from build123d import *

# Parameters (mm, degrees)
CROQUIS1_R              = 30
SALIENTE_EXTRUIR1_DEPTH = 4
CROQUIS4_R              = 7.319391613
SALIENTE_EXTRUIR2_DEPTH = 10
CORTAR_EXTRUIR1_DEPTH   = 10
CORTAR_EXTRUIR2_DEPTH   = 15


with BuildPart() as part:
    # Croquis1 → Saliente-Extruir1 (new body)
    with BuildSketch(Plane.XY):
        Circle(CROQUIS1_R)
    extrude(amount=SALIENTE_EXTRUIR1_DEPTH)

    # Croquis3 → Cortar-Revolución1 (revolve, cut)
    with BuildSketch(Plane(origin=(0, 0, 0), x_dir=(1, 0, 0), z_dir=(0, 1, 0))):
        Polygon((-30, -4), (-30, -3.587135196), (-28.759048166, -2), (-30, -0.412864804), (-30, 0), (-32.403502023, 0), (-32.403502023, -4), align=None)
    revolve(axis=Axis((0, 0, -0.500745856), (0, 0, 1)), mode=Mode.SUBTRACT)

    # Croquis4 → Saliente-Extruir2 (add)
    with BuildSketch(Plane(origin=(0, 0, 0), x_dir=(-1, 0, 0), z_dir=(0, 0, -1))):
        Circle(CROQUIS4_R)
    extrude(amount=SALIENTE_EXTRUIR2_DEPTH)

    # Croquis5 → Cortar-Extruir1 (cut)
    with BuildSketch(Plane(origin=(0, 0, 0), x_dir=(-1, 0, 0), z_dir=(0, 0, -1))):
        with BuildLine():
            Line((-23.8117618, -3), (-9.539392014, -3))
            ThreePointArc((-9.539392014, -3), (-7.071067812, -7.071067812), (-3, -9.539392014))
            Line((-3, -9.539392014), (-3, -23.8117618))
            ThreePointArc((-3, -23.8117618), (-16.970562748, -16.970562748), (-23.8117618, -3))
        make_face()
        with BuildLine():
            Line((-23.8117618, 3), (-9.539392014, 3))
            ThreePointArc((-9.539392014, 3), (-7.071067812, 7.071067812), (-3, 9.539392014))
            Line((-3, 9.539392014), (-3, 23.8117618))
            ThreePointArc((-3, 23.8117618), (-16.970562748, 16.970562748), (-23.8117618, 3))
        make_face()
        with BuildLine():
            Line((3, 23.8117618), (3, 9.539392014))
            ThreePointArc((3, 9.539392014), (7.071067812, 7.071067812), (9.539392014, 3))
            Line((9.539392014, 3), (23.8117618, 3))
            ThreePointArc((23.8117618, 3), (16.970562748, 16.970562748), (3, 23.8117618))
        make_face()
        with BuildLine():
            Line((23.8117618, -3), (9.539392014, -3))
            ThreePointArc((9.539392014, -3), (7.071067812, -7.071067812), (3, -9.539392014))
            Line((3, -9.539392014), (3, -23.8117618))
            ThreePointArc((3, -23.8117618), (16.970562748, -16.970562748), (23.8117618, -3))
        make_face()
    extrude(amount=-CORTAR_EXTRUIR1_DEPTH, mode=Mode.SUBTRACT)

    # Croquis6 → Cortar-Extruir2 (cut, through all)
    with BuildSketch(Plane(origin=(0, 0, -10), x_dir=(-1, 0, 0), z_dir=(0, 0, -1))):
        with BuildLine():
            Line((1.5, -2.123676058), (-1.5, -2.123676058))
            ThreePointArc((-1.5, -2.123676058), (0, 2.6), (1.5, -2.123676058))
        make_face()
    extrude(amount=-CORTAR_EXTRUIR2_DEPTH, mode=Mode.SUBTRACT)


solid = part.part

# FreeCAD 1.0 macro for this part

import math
import FreeCAD as App
import Part
import Sketcher

V = App.Vector

doc = App.newDocument("Part")
body = doc.addObject("PartDesign::Body", "Body")

# Sketch on XY plane
sketch1 = body.newObject("Sketcher::SketchObject", "Sketch")
sketch1.AttachmentSupport = (doc.getObject("XY_Plane"), [""])
sketch1.MapMode = "FlatFace"
sketch1.addGeometry(Part.Circle(V(0, 0, 0), V(0, 0, 1), 30), False)
sketch1.addConstraint(Sketcher.Constraint("Coincident", 0, 3, -1, 1))
sketch1.addConstraint(Sketcher.Constraint("Diameter", 0, 60.0))
pad1 = body.newObject("PartDesign::Pad", "Pad")
pad1.Profile = sketch1
pad1.Length = 4

# Sketch on XZ plane
sketch2 = body.newObject("Sketcher::SketchObject", "Sketch001")
sketch2.AttachmentSupport = (doc.getObject("XZ_Plane"), [""])
sketch2.MapMode = "FlatFace"
sketch2.addGeometry(Part.LineSegment(V(-30, 4, 0), V(-30, 3.59, 0)), False)
sketch2.addGeometry(Part.LineSegment(V(-30, 3.59, 0), V(-28.76, 2, 0)), False)
sketch2.addGeometry(Part.LineSegment(V(-28.76, 2, 0), V(-30, 0.41, 0)), False)
sketch2.addGeometry(Part.LineSegment(V(-30, 0.41, 0), V(-30, 0, 0)), False)
sketch2.addGeometry(Part.LineSegment(V(-30, 0, 0), V(-32.4, 0, 0)), False)
sketch2.addGeometry(Part.LineSegment(V(-32.4, 0, 0), V(-32.4, 4, 0)), False)
sketch2.addGeometry(Part.LineSegment(V(-32.4, 4, 0), V(-30, 4, 0)), False)
sketch2.addConstraint(Sketcher.Constraint("Coincident", 0, 2, 1, 1))
sketch2.addConstraint(Sketcher.Constraint("Coincident", 1, 2, 2, 1))
sketch2.addConstraint(Sketcher.Constraint("Coincident", 2, 2, 3, 1))
sketch2.addConstraint(Sketcher.Constraint("Coincident", 3, 2, 4, 1))
sketch2.addConstraint(Sketcher.Constraint("Coincident", 4, 2, 5, 1))
sketch2.addConstraint(Sketcher.Constraint("Coincident", 5, 2, 6, 1))
sketch2.addConstraint(Sketcher.Constraint("Coincident", 6, 2, 0, 1))
sketch2.addConstraint(Sketcher.Constraint("Vertical", 0))
sketch2.addConstraint(Sketcher.Constraint("Vertical", 3))
sketch2.addConstraint(Sketcher.Constraint("Horizontal", 4))
sketch2.addConstraint(Sketcher.Constraint("Vertical", 5))
sketch2.addConstraint(Sketcher.Constraint("Horizontal", 6))
sketch2.addConstraint(Sketcher.Constraint("PointOnObject", 3, 2, -1))
sketch2.addConstraint(Sketcher.Constraint("Vertical", 0, 2, 2, 2))
sketch2.addConstraint(Sketcher.Constraint("Equal", 0, 3))
sketch2.addConstraint(Sketcher.Constraint("Equal", 1, 2))
sketch2.addConstraint(Sketcher.Constraint("DistanceY", 5, 1, 5, 2, 4.0))
sketch2.addConstraint(Sketcher.Constraint("DistanceX", 0, 2, -1, 1, 30.0))
sketch2.addConstraint(Sketcher.Constraint("DistanceX", 4, 2, 4, 1, 2.403502))
sketch2.addConstraint(Sketcher.Constraint("DistanceY", 0, 2, 0, 1, 0.412865))
sketch2.addConstraint(Sketcher.Constraint("DistanceX", 1, 2, -1, 1, 28.759048))
groove = body.newObject("PartDesign::Groove", "Groove")
groove.Profile = sketch2
groove.ReferenceAxis = (sketch2, ["V_Axis"])
groove.Angle = 360

# Sketch on XY plane
sketch3 = body.newObject("Sketcher::SketchObject", "Sketch002")
sketch3.AttachmentSupport = (doc.getObject("XY_Plane"), [""])
sketch3.MapMode = "FlatFace"
sketch3.addGeometry(Part.Circle(V(0, 0, 0), V(0, 0, 1), 7), False)
sketch3.addConstraint(Sketcher.Constraint("Coincident", 0, 3, -1, 1))
sketch3.addConstraint(Sketcher.Constraint("Diameter", 0, 14.638783))
pad2 = body.newObject("PartDesign::Pad", "Pad001")
pad2.Profile = sketch3
pad2.Length = 10
pad2.Reversed = True

# Sketch on XY plane
sketch4 = body.newObject("Sketcher::SketchObject", "Sketch003")
sketch4.AttachmentSupport = (doc.getObject("XY_Plane"), [""])
sketch4.MapMode = "FlatFace"
sketch4.addGeometry(Part.LineSegment(V(10, -3, 0), V(24, -3, 0)), False)
sketch4.addGeometry(Part.ArcOfCircle(Part.Circle(V(0, 0, 0), V(0, 0, 1), 24), math.radians(-83), math.radians(-7)), False)
sketch4.addGeometry(Part.LineSegment(V(3, -24, 0), V(3, -10, 0)), False)
sketch4.addGeometry(Part.ArcOfCircle(Part.Circle(V(0, 0, 0), V(0, 0, 1), 10), math.radians(-73), math.radians(-17)), False)
sketch4.addGeometry(Part.LineSegment(V(24, 3, 0), V(10, 3, 0)), False)
sketch4.addGeometry(Part.ArcOfCircle(Part.Circle(V(0, 0, 0), V(0, 0, 1), 10), math.radians(17), math.radians(73)), False)
sketch4.addGeometry(Part.LineSegment(V(3, 10, 0), V(3, 24, 0)), False)
sketch4.addGeometry(Part.ArcOfCircle(Part.Circle(V(0, 0, 0), V(0, 0, 1), 24), math.radians(7), math.radians(83)), False)
sketch4.addGeometry(Part.LineSegment(V(-3, 24, 0), V(-3, 10, 0)), False)
sketch4.addGeometry(Part.ArcOfCircle(Part.Circle(V(0, 0, 0), V(0, 0, 1), 10), math.radians(107), math.radians(163)), False)
sketch4.addGeometry(Part.LineSegment(V(-10, 3, 0), V(-24, 3, 0)), False)
sketch4.addGeometry(Part.ArcOfCircle(Part.Circle(V(0, 0, 0), V(0, 0, 1), 24), math.radians(97), math.radians(173)), False)
sketch4.addGeometry(Part.LineSegment(V(-24, -3, 0), V(-10, -3, 0)), False)
sketch4.addGeometry(Part.ArcOfCircle(Part.Circle(V(0, 0, 0), V(0, 0, 1), 10), math.radians(-163), math.radians(-107)), False)
sketch4.addGeometry(Part.LineSegment(V(-3, -10, 0), V(-3, -24, 0)), False)
sketch4.addGeometry(Part.ArcOfCircle(Part.Circle(V(0, 0, 0), V(0, 0, 1), 24), math.radians(-173), math.radians(-97)), False)
sketch4.addConstraint(Sketcher.Constraint("Coincident", 0, 2, 1, 2))
sketch4.addConstraint(Sketcher.Constraint("Coincident", 1, 1, 2, 1))
sketch4.addConstraint(Sketcher.Constraint("Coincident", 2, 2, 3, 1))
sketch4.addConstraint(Sketcher.Constraint("Coincident", 3, 2, 0, 1))
sketch4.addConstraint(Sketcher.Constraint("Coincident", 4, 2, 5, 1))
sketch4.addConstraint(Sketcher.Constraint("Coincident", 5, 2, 6, 1))
sketch4.addConstraint(Sketcher.Constraint("Coincident", 6, 2, 7, 2))
sketch4.addConstraint(Sketcher.Constraint("Coincident", 7, 1, 4, 1))
sketch4.addConstraint(Sketcher.Constraint("Coincident", 8, 2, 9, 1))
sketch4.addConstraint(Sketcher.Constraint("Coincident", 9, 2, 10, 1))
sketch4.addConstraint(Sketcher.Constraint("Coincident", 10, 2, 11, 2))
sketch4.addConstraint(Sketcher.Constraint("Coincident", 11, 1, 8, 1))
sketch4.addConstraint(Sketcher.Constraint("Coincident", 12, 2, 13, 1))
sketch4.addConstraint(Sketcher.Constraint("Coincident", 13, 2, 14, 1))
sketch4.addConstraint(Sketcher.Constraint("Coincident", 14, 2, 15, 2))
sketch4.addConstraint(Sketcher.Constraint("Coincident", 15, 1, 12, 1))
sketch4.addConstraint(Sketcher.Constraint("Horizontal", 0))
sketch4.addConstraint(Sketcher.Constraint("Vertical", 2))
sketch4.addConstraint(Sketcher.Constraint("Horizontal", 4))
sketch4.addConstraint(Sketcher.Constraint("Vertical", 6))
sketch4.addConstraint(Sketcher.Constraint("Vertical", 8))
sketch4.addConstraint(Sketcher.Constraint("Horizontal", 10))
sketch4.addConstraint(Sketcher.Constraint("Horizontal", 12))
sketch4.addConstraint(Sketcher.Constraint("Vertical", 14))
sketch4.addConstraint(Sketcher.Constraint("Coincident", 1, 3, -1, 1))
sketch4.addConstraint(Sketcher.Constraint("Coincident", 3, 3, -1, 1))
sketch4.addConstraint(Sketcher.Constraint("Coincident", 5, 3, -1, 1))
sketch4.addConstraint(Sketcher.Constraint("Coincident", 7, 3, -1, 1))
sketch4.addConstraint(Sketcher.Constraint("Coincident", 9, 3, -1, 1))
sketch4.addConstraint(Sketcher.Constraint("Coincident", 11, 3, -1, 1))
sketch4.addConstraint(Sketcher.Constraint("Coincident", 13, 3, -1, 1))
sketch4.addConstraint(Sketcher.Constraint("Coincident", 15, 3, -1, 1))
sketch4.addConstraint(Sketcher.Constraint("Equal", 3, 5))
sketch4.addConstraint(Sketcher.Constraint("Equal", 1, 7))
sketch4.addConstraint(Sketcher.Constraint("Equal", 5, 9))
sketch4.addConstraint(Sketcher.Constraint("Equal", 7, 11))
sketch4.addConstraint(Sketcher.Constraint("Equal", 9, 13))
sketch4.addConstraint(Sketcher.Constraint("Equal", 11, 15))
sketch4.addConstraint(Sketcher.Constraint("Horizontal", 5, 2, 8, 2))
sketch4.addConstraint(Sketcher.Constraint("Horizontal", 7, 1, 9, 2))
sketch4.addConstraint(Sketcher.Constraint("Horizontal", 3, 2, 12, 2))
sketch4.addConstraint(Sketcher.Constraint("Horizontal", 2, 2, 13, 2))
sketch4.addConstraint(Sketcher.Constraint("Vertical", 3, 2, 4, 2))
sketch4.addConstraint(Sketcher.Constraint("Vertical", 2, 2, 5, 2))
sketch4.addConstraint(Sketcher.Constraint("Equal", 12, 2))
sketch4.addConstraint(Sketcher.Constraint("Radius", 1, 24.0))
sketch4.addConstraint(Sketcher.Constraint("Radius", 3, 10.0))
sketch4.addConstraint(Sketcher.Constraint("DistanceY", 0, 2, -1, 1, 3.0))
pocket1 = body.newObject("PartDesign::Pocket", "Pocket")
pocket1.Profile = sketch4
pocket1.Length = 10
pocket1.Reversed = True

# Sketch on XY plane
sketch5 = body.newObject("Sketcher::SketchObject", "Sketch004")
sketch5.AttachmentSupport = (doc.getObject("XY_Plane"), [""])
sketch5.MapMode = "FlatFace"
sketch5.AttachmentOffset = App.Placement(V(0, 0, -10), App.Rotation())
sketch5.addGeometry(Part.LineSegment(V(1.5, -2.1, 0), V(-1.5, -2.1, 0)), False)
sketch5.addGeometry(Part.ArcOfCircle(Part.Circle(V(0, 0, 0), V(0, 0, 1), 2.6), math.radians(-55), math.radians(235)), False)
sketch5.addConstraint(Sketcher.Constraint("Coincident", 0, 1, 1, 1))
sketch5.addConstraint(Sketcher.Constraint("Coincident", 1, 2, 0, 2))
sketch5.addConstraint(Sketcher.Constraint("Horizontal", 0))
sketch5.addConstraint(Sketcher.Constraint("Coincident", 1, 3, -1, 1))
sketch5.addConstraint(Sketcher.Constraint("Radius", 1, 2.6))
sketch5.addConstraint(Sketcher.Constraint("DistanceX", 0, 2, 0, 1, 3.0))
pocket2 = body.newObject("PartDesign::Pocket", "Pocket001")
pocket2.Profile = sketch5
pocket2.Type = "ThroughAll"
pocket2.Reversed = True

doc.recompute()
